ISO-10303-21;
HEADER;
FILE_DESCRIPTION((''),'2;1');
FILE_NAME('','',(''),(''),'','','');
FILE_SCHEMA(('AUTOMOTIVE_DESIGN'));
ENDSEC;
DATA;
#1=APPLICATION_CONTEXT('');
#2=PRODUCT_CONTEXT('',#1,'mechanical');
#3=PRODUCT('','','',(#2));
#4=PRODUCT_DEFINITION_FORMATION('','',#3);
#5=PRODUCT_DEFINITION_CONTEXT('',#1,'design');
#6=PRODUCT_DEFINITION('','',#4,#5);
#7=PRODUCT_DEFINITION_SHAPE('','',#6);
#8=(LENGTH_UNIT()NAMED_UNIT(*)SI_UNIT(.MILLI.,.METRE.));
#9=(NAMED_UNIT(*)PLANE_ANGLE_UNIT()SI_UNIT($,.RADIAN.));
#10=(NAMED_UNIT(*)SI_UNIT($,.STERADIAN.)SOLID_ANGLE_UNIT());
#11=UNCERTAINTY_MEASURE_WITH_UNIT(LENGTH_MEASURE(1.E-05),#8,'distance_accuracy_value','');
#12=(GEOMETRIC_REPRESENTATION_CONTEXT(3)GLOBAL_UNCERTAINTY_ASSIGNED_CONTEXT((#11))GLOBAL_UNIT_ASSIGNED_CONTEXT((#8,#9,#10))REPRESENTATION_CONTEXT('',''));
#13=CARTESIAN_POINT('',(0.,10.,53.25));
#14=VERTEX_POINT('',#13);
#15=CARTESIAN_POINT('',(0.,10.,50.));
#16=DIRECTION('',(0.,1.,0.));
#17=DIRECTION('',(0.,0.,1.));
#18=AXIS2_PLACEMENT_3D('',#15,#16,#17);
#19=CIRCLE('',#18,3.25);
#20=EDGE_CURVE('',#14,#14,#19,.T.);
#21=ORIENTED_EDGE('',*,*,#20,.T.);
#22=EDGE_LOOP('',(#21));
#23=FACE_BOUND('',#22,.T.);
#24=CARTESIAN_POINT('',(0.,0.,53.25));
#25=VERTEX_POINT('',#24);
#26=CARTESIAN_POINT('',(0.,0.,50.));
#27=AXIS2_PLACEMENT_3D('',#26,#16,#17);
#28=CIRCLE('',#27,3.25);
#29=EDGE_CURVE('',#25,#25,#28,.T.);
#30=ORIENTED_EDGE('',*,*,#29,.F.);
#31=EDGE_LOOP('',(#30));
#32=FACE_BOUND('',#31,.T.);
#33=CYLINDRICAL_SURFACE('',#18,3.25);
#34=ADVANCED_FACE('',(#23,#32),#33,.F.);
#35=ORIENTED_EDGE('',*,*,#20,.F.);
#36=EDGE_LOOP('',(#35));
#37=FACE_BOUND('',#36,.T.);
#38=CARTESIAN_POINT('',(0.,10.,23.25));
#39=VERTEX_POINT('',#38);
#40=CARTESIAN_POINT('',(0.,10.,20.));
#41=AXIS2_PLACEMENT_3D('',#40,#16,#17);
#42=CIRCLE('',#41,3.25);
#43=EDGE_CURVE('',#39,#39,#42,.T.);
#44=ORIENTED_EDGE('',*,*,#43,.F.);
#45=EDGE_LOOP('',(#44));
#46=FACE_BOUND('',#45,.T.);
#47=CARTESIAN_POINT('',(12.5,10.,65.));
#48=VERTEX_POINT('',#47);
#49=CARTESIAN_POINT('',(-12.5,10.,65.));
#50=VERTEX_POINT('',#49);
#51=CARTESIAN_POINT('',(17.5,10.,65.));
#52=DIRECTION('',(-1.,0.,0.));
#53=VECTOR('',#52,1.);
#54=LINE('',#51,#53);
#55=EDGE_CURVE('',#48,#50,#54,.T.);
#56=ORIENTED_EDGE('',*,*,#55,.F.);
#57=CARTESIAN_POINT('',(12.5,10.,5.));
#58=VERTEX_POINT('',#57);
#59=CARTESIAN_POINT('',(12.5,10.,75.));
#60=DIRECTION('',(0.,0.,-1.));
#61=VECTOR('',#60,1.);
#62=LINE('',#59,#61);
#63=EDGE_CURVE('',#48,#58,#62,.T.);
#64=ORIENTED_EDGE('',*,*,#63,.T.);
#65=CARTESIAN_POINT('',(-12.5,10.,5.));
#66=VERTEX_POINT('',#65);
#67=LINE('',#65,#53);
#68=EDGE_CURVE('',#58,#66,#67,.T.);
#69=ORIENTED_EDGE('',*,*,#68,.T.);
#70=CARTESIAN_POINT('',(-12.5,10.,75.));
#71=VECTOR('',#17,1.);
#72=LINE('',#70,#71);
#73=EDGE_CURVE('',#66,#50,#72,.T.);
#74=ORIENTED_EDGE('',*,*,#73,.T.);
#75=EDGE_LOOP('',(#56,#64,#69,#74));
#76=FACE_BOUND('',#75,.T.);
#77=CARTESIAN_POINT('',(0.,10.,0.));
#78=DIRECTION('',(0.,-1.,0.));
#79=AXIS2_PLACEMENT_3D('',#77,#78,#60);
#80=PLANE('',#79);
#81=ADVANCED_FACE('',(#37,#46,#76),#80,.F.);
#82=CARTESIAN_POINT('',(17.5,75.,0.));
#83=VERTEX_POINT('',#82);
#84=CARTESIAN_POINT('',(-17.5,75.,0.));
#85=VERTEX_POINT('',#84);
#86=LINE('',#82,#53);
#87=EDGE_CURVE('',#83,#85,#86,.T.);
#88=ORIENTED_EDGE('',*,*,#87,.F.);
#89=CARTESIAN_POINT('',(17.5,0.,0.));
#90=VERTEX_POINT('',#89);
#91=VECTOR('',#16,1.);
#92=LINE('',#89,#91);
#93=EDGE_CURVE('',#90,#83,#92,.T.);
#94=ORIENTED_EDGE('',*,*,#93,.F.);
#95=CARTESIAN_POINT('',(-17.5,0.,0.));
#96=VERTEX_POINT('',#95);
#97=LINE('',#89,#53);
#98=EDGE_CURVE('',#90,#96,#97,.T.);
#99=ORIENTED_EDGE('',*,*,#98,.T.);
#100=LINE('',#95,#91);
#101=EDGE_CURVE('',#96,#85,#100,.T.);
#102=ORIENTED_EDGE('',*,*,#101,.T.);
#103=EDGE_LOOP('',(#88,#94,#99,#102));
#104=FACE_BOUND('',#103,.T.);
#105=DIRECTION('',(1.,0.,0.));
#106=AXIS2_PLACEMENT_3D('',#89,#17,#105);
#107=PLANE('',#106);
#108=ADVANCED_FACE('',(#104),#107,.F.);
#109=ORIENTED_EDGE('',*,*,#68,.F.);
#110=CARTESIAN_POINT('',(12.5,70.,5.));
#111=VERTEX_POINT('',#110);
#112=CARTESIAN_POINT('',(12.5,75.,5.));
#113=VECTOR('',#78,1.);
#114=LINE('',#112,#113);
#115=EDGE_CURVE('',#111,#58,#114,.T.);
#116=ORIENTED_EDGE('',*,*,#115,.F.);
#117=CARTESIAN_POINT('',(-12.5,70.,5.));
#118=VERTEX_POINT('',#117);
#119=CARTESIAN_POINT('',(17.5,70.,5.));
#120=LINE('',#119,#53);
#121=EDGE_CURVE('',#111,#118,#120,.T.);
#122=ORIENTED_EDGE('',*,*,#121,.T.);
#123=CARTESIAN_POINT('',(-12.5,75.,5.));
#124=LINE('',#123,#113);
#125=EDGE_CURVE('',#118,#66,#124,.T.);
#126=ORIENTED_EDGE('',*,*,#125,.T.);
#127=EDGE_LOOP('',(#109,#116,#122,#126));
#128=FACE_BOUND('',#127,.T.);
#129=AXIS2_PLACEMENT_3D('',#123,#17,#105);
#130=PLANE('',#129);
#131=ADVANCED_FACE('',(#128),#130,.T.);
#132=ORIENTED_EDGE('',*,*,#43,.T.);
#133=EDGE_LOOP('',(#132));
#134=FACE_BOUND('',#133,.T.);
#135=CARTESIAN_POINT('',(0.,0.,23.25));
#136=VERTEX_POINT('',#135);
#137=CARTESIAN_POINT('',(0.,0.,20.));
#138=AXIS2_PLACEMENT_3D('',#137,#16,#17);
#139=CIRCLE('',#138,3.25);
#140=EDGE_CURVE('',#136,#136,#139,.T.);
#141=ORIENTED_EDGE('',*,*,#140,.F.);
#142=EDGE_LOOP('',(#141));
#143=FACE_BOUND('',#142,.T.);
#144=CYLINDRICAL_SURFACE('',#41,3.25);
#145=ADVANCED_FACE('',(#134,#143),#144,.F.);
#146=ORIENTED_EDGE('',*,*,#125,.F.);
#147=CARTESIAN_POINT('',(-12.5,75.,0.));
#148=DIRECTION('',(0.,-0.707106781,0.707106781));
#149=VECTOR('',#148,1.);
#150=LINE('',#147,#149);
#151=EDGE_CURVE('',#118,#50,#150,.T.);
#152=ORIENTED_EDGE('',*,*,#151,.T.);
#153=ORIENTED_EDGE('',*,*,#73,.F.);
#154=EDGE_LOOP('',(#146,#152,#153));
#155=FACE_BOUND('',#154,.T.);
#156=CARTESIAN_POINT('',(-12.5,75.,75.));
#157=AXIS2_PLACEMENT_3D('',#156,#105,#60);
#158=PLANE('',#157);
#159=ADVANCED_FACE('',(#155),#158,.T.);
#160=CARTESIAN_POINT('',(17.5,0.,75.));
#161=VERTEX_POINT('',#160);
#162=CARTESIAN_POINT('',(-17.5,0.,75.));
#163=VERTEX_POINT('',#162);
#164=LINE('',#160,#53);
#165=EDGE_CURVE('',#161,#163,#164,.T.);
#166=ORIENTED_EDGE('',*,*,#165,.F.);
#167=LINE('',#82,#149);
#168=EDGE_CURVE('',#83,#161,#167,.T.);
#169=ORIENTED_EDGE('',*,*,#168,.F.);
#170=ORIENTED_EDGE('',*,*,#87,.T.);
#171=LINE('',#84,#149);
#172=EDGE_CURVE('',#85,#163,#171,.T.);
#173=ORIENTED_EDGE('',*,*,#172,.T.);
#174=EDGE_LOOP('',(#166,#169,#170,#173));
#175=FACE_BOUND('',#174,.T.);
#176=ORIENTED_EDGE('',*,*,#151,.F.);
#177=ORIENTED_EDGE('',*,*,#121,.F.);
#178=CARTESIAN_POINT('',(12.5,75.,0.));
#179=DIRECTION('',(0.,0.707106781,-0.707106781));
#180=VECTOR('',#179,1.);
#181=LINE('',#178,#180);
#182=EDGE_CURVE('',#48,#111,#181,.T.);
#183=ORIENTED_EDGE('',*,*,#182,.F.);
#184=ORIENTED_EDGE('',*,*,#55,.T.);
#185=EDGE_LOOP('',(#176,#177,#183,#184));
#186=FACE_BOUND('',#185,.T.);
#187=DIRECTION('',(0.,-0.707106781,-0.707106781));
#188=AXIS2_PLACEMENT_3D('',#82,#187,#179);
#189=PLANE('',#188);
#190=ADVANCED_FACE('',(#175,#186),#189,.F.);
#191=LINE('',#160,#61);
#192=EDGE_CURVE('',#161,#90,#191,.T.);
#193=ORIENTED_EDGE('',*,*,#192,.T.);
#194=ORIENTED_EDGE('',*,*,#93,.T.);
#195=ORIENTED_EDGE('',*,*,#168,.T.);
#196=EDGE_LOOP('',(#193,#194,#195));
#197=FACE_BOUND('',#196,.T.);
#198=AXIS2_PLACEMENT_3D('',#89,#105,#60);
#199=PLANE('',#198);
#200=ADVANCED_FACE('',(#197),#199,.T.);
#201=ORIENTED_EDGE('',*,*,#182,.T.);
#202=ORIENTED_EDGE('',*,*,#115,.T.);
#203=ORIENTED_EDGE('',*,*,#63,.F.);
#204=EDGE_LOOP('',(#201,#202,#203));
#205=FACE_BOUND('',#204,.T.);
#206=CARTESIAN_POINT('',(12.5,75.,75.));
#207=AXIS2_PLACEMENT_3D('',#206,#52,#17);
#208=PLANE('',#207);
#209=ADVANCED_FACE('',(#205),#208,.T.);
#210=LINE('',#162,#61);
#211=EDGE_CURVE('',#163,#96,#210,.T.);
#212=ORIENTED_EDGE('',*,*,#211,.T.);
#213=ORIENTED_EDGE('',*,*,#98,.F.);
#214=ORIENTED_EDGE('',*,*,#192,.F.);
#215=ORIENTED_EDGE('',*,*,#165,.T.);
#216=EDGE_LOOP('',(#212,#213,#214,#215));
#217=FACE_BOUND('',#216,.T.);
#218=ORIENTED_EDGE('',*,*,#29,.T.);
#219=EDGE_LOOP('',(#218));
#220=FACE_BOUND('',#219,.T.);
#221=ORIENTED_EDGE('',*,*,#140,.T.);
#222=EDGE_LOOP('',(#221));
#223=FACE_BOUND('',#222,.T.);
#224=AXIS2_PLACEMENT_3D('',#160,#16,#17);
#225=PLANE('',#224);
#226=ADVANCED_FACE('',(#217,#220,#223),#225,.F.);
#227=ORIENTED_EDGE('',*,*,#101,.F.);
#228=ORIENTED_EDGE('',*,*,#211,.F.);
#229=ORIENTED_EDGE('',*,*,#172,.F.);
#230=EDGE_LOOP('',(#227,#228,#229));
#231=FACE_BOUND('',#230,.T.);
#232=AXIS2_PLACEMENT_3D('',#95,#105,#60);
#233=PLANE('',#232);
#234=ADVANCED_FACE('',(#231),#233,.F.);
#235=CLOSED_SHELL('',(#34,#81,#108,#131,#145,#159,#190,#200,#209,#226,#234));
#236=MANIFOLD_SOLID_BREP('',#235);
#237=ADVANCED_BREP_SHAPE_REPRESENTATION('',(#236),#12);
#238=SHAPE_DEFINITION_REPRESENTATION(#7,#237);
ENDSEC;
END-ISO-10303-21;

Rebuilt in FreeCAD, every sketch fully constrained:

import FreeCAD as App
import Part
import Sketcher

V = App.Vector

doc = App.newDocument("Part")
body = doc.addObject("PartDesign::Body", "Body")

# Sketch on YZ plane
sketch1 = body.newObject("Sketcher::SketchObject", "Sketch")
sketch1.AttachmentSupport = (doc.getObject("YZ_Plane"), [""])
sketch1.MapMode = "FlatFace"
sketch1.addGeometry([
    Part.LineSegment(V(0, 0, 0), V(75, 0, 0)),
    Part.LineSegment(V(75, 0, 0), V(0, 75, 0)),
    Part.LineSegment(V(0, 75, 0), V(0, 0, 0)),
], False)
sketch1.addConstraint([
    Sketcher.Constraint("Coincident", 0, 2, 1, 1),
    Sketcher.Constraint("Coincident", 1, 2, 2, 1),
    Sketcher.Constraint("Coincident", 2, 2, 0, 1),
    Sketcher.Constraint("Horizontal", 0),
    Sketcher.Constraint("Vertical", 2),
    Sketcher.Constraint("Coincident", 2, 2, -1, 1),
    Sketcher.Constraint("Equal", 0, 2),
    Sketcher.Constraint("DistanceX", 0, 1, 0, 2, 75.0),
])
pad1 = body.newObject("PartDesign::Pad", "Pad")
pad1.Profile = sketch1
pad1.Length = 35
pad1.Midplane = True

# Sketch on XZ plane
sketch2 = body.newObject("Sketcher::SketchObject", "Sketch001")
sketch2.AttachmentSupport = (doc.getObject("XZ_Plane"), [""])
sketch2.MapMode = "FlatFace"
sketch2.AttachmentOffset = App.Placement(V(0, 0, -10), App.Rotation())
sketch2.addGeometry([
    Part.LineSegment(V(-12, 5, 0), V(-12, 75, 0)),
    Part.LineSegment(V(-12, 75, 0), V(12, 75, 0)),
    Part.LineSegment(V(12, 75, 0), V(12, 5, 0)),
    Part.LineSegment(V(12, 5, 0), V(-12, 5, 0)),
], False)
sketch2.addConstraint([
    Sketcher.Constraint("Coincident", 0, 2, 1, 1),
    Sketcher.Constraint("Coincident", 1, 2, 2, 1),
    Sketcher.Constraint("Coincident", 2, 2, 3, 1),
    Sketcher.Constraint("Coincident", 3, 2, 0, 1),
    Sketcher.Constraint("Vertical", 0),
    Sketcher.Constraint("Horizontal", 1),
    Sketcher.Constraint("Vertical", 2),
    Sketcher.Constraint("Horizontal", 3),
    Sketcher.Constraint("DistanceX", 1, 1, 1, 2, 25.0),
    Sketcher.Constraint("DistanceY", 0, 1, 0, 2, 70.0),
    Sketcher.Constraint("DistanceY", -1, 1, 0, 2, 75.0),
    Sketcher.Constraint("DistanceX", 0, 2, -1, 1, 12.5),
])
pocket1 = body.newObject("PartDesign::Pocket", "Pocket")
pocket1.Profile = sketch2
pocket1.Type = "ThroughAll"

# Sketch on XZ plane
sketch3 = body.newObject("Sketcher::SketchObject", "Sketch002")
sketch3.AttachmentSupport = (doc.getObject("XZ_Plane"), [""])
sketch3.MapMode = "FlatFace"
sketch3.AttachmentOffset = App.Placement(V(0, 0, -10), App.Rotation())
sketch3.addGeometry([
    Part.Circle(V(0, 20, 0), V(0, 0, 1), 3.2),
    Part.Circle(V(0, 50, 0), V(0, 0, 1), 3.2),
], False)
sketch3.addConstraint([
    Sketcher.Constraint("Equal", 0, 1),
    Sketcher.Constraint("PointOnObject", 0, 3, -2),
    Sketcher.Constraint("PointOnObject", 1, 3, -2),
    Sketcher.Constraint("Diameter", 0, 6.5),
    Sketcher.Constraint("DistanceY", -1, 1, 0, 3, 20.0),
    Sketcher.Constraint("DistanceY", -1, 1, 1, 3, 50.0),
])
doc.recompute()
hole = body.newObject("PartDesign::Hole", "Hole")
hole.Profile = sketch3
hole.ThreadType = "None"
hole.Diameter = 6.5
hole.DepthType = "ThroughAll"
hole.Reversed = True

doc.recompute()
